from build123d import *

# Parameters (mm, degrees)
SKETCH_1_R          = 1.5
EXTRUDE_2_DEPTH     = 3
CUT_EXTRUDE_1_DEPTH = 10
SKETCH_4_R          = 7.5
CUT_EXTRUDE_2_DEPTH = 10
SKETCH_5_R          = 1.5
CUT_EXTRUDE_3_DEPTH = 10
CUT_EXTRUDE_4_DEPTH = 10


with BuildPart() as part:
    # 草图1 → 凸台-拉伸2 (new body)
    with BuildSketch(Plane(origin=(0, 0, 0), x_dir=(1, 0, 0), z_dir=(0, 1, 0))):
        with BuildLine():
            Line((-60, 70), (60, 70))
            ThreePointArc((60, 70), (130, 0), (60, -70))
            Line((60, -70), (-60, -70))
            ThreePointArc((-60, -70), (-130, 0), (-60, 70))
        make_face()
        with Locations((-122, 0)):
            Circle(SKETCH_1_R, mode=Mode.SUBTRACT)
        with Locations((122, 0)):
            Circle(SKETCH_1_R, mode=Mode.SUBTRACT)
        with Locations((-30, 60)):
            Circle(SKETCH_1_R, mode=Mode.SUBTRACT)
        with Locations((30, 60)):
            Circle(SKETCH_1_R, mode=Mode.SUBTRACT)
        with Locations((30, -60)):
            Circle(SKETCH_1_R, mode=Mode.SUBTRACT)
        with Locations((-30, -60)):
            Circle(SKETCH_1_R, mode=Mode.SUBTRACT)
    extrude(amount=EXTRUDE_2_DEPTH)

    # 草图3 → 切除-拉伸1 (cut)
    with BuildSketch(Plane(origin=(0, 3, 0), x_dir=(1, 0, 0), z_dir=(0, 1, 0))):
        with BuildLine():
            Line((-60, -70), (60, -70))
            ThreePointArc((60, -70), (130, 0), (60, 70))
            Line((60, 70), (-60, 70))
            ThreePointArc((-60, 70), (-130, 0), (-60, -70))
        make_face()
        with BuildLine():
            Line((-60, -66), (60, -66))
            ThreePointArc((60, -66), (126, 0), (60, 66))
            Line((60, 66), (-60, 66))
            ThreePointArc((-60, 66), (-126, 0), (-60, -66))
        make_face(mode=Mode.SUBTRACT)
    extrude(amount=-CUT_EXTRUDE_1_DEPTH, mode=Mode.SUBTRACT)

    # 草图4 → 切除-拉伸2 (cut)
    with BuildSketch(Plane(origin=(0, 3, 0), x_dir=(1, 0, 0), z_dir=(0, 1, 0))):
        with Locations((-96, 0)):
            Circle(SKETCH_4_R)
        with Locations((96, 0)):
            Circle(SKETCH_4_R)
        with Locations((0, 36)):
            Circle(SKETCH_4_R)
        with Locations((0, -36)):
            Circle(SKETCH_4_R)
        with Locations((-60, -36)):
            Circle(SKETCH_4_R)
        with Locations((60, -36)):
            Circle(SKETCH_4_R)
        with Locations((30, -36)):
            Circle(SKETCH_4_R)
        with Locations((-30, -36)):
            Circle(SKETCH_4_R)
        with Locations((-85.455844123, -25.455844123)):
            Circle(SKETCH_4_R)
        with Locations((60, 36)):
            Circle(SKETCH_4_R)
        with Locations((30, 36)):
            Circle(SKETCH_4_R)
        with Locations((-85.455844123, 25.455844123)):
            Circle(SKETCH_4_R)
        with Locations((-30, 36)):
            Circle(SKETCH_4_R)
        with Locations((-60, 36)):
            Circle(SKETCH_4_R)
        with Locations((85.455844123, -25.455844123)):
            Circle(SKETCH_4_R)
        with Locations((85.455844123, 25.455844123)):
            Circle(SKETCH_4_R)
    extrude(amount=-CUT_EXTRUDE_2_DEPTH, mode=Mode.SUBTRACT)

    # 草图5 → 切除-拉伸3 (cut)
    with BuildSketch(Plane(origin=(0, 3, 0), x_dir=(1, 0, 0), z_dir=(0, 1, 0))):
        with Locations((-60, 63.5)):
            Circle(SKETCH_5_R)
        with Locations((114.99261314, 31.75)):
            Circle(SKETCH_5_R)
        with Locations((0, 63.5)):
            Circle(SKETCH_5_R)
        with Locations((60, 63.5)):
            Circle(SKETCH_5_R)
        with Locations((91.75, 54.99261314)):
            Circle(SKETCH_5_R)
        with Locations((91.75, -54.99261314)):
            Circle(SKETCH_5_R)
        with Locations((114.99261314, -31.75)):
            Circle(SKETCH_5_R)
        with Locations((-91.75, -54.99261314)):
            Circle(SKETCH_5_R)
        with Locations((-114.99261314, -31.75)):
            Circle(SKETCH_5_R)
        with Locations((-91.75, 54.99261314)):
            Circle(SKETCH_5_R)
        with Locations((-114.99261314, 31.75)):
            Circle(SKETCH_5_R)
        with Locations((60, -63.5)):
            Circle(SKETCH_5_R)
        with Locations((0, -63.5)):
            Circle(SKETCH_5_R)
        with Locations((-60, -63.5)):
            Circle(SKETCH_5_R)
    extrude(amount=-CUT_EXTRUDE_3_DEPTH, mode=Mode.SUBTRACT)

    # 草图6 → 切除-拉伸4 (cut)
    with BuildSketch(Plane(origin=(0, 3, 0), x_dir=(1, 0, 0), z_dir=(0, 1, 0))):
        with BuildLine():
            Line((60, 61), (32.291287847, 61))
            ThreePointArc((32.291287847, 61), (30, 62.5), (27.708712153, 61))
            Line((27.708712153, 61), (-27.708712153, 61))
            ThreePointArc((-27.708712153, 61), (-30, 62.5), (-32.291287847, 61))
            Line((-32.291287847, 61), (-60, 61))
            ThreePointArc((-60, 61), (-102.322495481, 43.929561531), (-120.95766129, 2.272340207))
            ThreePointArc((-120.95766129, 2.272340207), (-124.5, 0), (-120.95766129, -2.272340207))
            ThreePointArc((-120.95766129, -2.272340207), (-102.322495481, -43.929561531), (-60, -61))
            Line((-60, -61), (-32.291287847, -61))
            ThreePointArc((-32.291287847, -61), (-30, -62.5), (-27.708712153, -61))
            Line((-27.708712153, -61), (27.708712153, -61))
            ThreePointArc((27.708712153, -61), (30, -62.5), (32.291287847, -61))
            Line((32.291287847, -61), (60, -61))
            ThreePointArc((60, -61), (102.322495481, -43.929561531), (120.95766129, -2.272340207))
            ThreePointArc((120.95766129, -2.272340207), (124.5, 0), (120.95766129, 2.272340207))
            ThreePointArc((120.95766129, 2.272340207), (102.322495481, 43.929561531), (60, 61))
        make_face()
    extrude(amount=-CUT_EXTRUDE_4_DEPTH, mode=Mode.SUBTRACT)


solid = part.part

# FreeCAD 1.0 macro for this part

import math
import FreeCAD as App
import Part
import Sketcher

doc = App.newDocument("Part")
body = doc.addObject("PartDesign::Body", "Body")

sketch1 = body.newObject("Sketcher::SketchObject", "Sketch")
sketch1.AttachmentSupport = (doc.getObject("XZ_Plane"), [""])
sketch1.MapMode = "FlatFace"
sketch1.addGeometry([
    Part.LineSegment(App.Vector(60, -70, 0), App.Vector(-60, -70, 0)),
    Part.ArcOfCircle(Part.Circle(App.Vector(-60, 0, 0), App.Vector(0, 0, 1), 70), math.radians(90), math.radians(270)),
    Part.LineSegment(App.Vector(-60, 70, 0), App.Vector(60, 70, 0)),
    Part.ArcOfCircle(Part.Circle(App.Vector(60, 0, 0), App.Vector(0, 0, 1), 70), math.radians(-90), math.radians(90)),
    Part.Circle(App.Vector(30, 60, 0), App.Vector(0, 0, 1), 1.5),
    Part.Circle(App.Vector(-30, 60, 0), App.Vector(0, 0, 1), 1.5),
    Part.Circle(App.Vector(122, 0, 0), App.Vector(0, 0, 1), 1.5),
    Part.Circle(App.Vector(30, -60, 0), App.Vector(0, 0, 1), 1.5),
    Part.Circle(App.Vector(-122, 0, 0), App.Vector(0, 0, 1), 1.5),
    Part.Circle(App.Vector(-30, -60, 0), App.Vector(0, 0, 1), 1.5),
], False)
sketch1.addConstraint([
    Sketcher.Constraint("Tangent", 0, 2, 1, 2),
    Sketcher.Constraint("Tangent", 1, 1, 2, 1),
    Sketcher.Constraint("Tangent", 2, 2, 3, 2),
    Sketcher.Constraint("Tangent", 3, 1, 0, 1),
    Sketcher.Constraint("Horizontal", 0),
    Sketcher.Constraint("Horizontal", 2),
    Sketcher.Constraint("Equal", 4, 5),
    Sketcher.Constraint("Equal", 5, 6),
    Sketcher.Constraint("Equal", 6, 7),
    Sketcher.Constraint("Equal", 7, 8),
    Sketcher.Constraint("Equal", 8, 9),
    Sketcher.Constraint("Symmetric", 1, 3, 3, 3, -1, 1),
    Sketcher.Constraint("Symmetric", 5, 3, 7, 3, -1, 1),
    Sketcher.Constraint("Symmetric", 6, 3, 8, 3, -1, 1),
    Sketcher.Constraint("Symmetric", 4, 3, 9, 3, -1, 1),
    Sketcher.Constraint("Symmetric", 4, 3, 5, 3, -2),
    Sketcher.Constraint("PointOnObject", 6, 3, -1),
    Sketcher.Constraint("Diameter", 4, 3.0),
    Sketcher.Constraint("Radius", 1, 70.0),
    Sketcher.Constraint("DistanceX", 0, 2, 0, 1, 120.0),
    Sketcher.Constraint("DistanceX", -1, 1, 4, 3, 30.0),
    Sketcher.Constraint("DistanceY", -1, 1, 4, 3, 60.0),
    Sketcher.Constraint("DistanceX", -1, 1, 6, 3, 122.0),
])
pad1 = body.newObject("PartDesign::Pad", "Pad")
pad1.Profile = sketch1
pad1.Length = 3
pad1.Reversed = True

sketch2 = body.newObject("Sketcher::SketchObject", "Sketch001")
sketch2.AttachmentSupport = (doc.getObject("XZ_Plane"), [""])
sketch2.MapMode = "FlatFace"
sketch2.AttachmentOffset = App.Placement(App.Vector(0, 0, -3), App.Rotation())
sketch2.addGeometry([
    Part.LineSegment(App.Vector(-60, 70, 0), App.Vector(60, 70, 0)),
    Part.ArcOfCircle(Part.Circle(App.Vector(60, 0, 0), App.Vector(0, 0, 1), 70), math.radians(-90), math.radians(90)),
    Part.LineSegment(App.Vector(60, -70, 0), App.Vector(-60, -70, 0)),
    Part.ArcOfCircle(Part.Circle(App.Vector(-60, 0, 0), App.Vector(0, 0, 1), 70), math.radians(90), math.radians(270)),
    Part.LineSegment(App.Vector(60, 66, 0), App.Vector(-60, 66, 0)),
    Part.ArcOfCircle(Part.Circle(App.Vector(-60, 0, 0), App.Vector(0, 0, 1), 66), math.radians(90), math.radians(270)),
    Part.LineSegment(App.Vector(-60, -66, 0), App.Vector(60, -66, 0)),
    Part.ArcOfCircle(Part.Circle(App.Vector(60, 0, 0), App.Vector(0, 0, 1), 66), math.radians(-90), math.radians(90)),
], False)
sketch2.addConstraint([
    Sketcher.Constraint("Tangent", 0, 2, 1, 2),
    Sketcher.Constraint("Tangent", 1, 1, 2, 1),
    Sketcher.Constraint("Tangent", 2, 2, 3, 2),
    Sketcher.Constraint("Tangent", 3, 1, 0, 1),
    Sketcher.Constraint("Tangent", 4, 2, 5, 1),
    Sketcher.Constraint("Tangent", 5, 2, 6, 1),
    Sketcher.Constraint("Tangent", 6, 2, 7, 1),
    Sketcher.Constraint("Tangent", 7, 2, 4, 1),
    Sketcher.Constraint("Horizontal", 0),
    Sketcher.Constraint("Horizontal", 2),
    Sketcher.Constraint("Horizontal", 4),
    Sketcher.Constraint("Horizontal", 6),
    Sketcher.Constraint("Coincident", 5, 3, 3, 3),
    Sketcher.Constraint("Symmetric", 1, 3, 3, 3, -1, 1),
    Sketcher.Constraint("Vertical", 7, 3, 0, 2),
    Sketcher.Constraint("Radius", 1, 70.0),
    Sketcher.Constraint("Radius", 5, 66.0),
    Sketcher.Constraint("DistanceX", 0, 1, 0, 2, 120.0),
])
pocket1 = body.newObject("PartDesign::Pocket", "Pocket")
pocket1.Profile = sketch2
pocket1.Length = 10
pocket1.Reversed = True

sketch3 = body.newObject("Sketcher::SketchObject", "Sketch002")
sketch3.AttachmentSupport = (doc.getObject("XZ_Plane"), [""])
sketch3.MapMode = "FlatFace"
sketch3.AttachmentOffset = App.Placement(App.Vector(0, 0, -3), App.Rotation())
sketch3.addGeometry([
    Part.Circle(App.Vector(-96, 0, 0), App.Vector(0, 0, 1), 8),
    Part.Circle(App.Vector(96, 0, 0), App.Vector(0, 0, 1), 8),
    Part.Circle(App.Vector(0, -36, 0), App.Vector(0, 0, 1), 8),
    Part.Circle(App.Vector(0, 36, 0), App.Vector(0, 0, 1), 8),
    Part.Circle(App.Vector(-60, 36, 0), App.Vector(0, 0, 1), 8),
    Part.Circle(App.Vector(60, 36, 0), App.Vector(0, 0, 1), 8),
    Part.Circle(App.Vector(30, 36, 0), App.Vector(0, 0, 1), 8),
    Part.Circle(App.Vector(-30, 36, 0), App.Vector(0, 0, 1), 8),
    Part.Circle(App.Vector(-85, 25, 0), App.Vector(0, 0, 1), 8),
    Part.Circle(App.Vector(60, -36, 0), App.Vector(0, 0, 1), 8),
    Part.Circle(App.Vector(30, -36, 0), App.Vector(0, 0, 1), 8),
    Part.Circle(App.Vector(-85, -25, 0), App.Vector(0, 0, 1), 8),
    Part.Circle(App.Vector(-30, -36, 0), App.Vector(0, 0, 1), 8),
    Part.Circle(App.Vector(-60, -36, 0), App.Vector(0, 0, 1), 8),
    Part.Circle(App.Vector(85, 25, 0), App.Vector(0, 0, 1), 8),
    Part.Circle(App.Vector(85, -25, 0), App.Vector(0, 0, 1), 8),
], False)
sketch3.addConstraint([
    Sketcher.Constraint("Equal", 0, 1),
    Sketcher.Constraint("Equal", 1, 2),
    Sketcher.Constraint("Equal", 2, 3),
    Sketcher.Constraint("Equal", 3, 4),
    Sketcher.Constraint("Equal", 4, 5),
    Sketcher.Constraint("Equal", 5, 6),
    Sketcher.Constraint("Equal", 6, 7),
    Sketcher.Constraint("Equal", 7, 8),
    Sketcher.Constraint("Equal", 8, 9),
    Sketcher.Constraint("Equal", 9, 10),
    Sketcher.Constraint("Equal", 10, 11),
    Sketcher.Constraint("Equal", 11, 12),
    Sketcher.Constraint("Equal", 12, 13),
    Sketcher.Constraint("Equal", 13, 14),
    Sketcher.Constraint("Equal", 14, 15),
    Sketcher.Constraint("Symmetric", 0, 3, 1, 3, -1, 1),
    Sketcher.Constraint("Symmetric", 2, 3, 3, 3, -1, 1),
    Sketcher.Constraint("Symmetric", 4, 3, 9, 3, -1, 1),
    Sketcher.Constraint("Symmetric", 7, 3, 10, 3, -1, 1),
    Sketcher.Constraint("Symmetric", 6, 3, 12, 3, -1, 1),
    Sketcher.Constraint("Symmetric", 5, 3, 13, 3, -1, 1),
    Sketcher.Constraint("Symmetric", 11, 3, 14, 3, -1, 1),
    Sketcher.Constraint("Symmetric", 8, 3, 15, 3, -1, 1),
    Sketcher.Constraint("Symmetric", 4, 3, 5, 3, -2),
    Sketcher.Constraint("Symmetric", 6, 3, 7, 3, -2),
    Sketcher.Constraint("Symmetric", 8, 3, 14, 3, -2),
    Sketcher.Constraint("PointOnObject", 0, 3, -1),
    Sketcher.Constraint("PointOnObject", 2, 3, -2),
    Sketcher.Constraint("Horizontal", 3, 3, 4, 3),
    Sketcher.Constraint("Horizontal", 5, 3, 6, 3),
    Sketcher.Constraint("Diameter", 0, 15.0),
    Sketcher.Constraint("DistanceX", 0, 3, -1, 1, 96.0),
    Sketcher.Constraint("DistanceY", 2, 3, -1, 1, 36.0),
    Sketcher.Constraint("DistanceX", 4, 3, -1, 1, 60.0),
    Sketcher.Constraint("DistanceX", -1, 1, 6, 3, 30.0),
    Sketcher.Constraint("DistanceY", 11, 3, 8, 3, 50.911688),
    Sketcher.Constraint("DistanceX", 8, 3, -1, 1, 85.455844),
])
pocket2 = body.newObject("PartDesign::Pocket", "Pocket001")
pocket2.Profile = sketch3
pocket2.Length = 10
pocket2.Reversed = True

sketch4 = body.newObject("Sketcher::SketchObject", "Sketch003")
sketch4.AttachmentSupport = (doc.getObject("XZ_Plane"), [""])
sketch4.MapMode = "FlatFace"
sketch4.AttachmentOffset = App.Placement(App.Vector(0, 0, -3), App.Rotation())
sketch4.addGeometry([
    Part.Circle(App.Vector(-60, -63.5, 0), App.Vector(0, 0, 1), 1.5),
    Part.Circle(App.Vector(115, -31.8, 0), App.Vector(0, 0, 1), 1.5),
    Part.Circle(App.Vector(0, -63.5, 0), App.Vector(0, 0, 1), 1.5),
    Part.Circle(App.Vector(60, -63.5, 0), App.Vector(0, 0, 1), 1.5),
    Part.Circle(App.Vector(91.8, -55, 0), App.Vector(0, 0, 1), 1.5),
    Part.Circle(App.Vector(91.8, 55, 0), App.Vector(0, 0, 1), 1.5),
    Part.Circle(App.Vector(115, 31.8, 0), App.Vector(0, 0, 1), 1.5),
    Part.Circle(App.Vector(-91.8, 55, 0), App.Vector(0, 0, 1), 1.5),
    Part.Circle(App.Vector(-115, 31.8, 0), App.Vector(0, 0, 1), 1.5),
    Part.Circle(App.Vector(-91.8, -55, 0), App.Vector(0, 0, 1), 1.5),
    Part.Circle(App.Vector(-115, -31.8, 0), App.Vector(0, 0, 1), 1.5),
    Part.Circle(App.Vector(60, 63.5, 0), App.Vector(0, 0, 1), 1.5),
    Part.Circle(App.Vector(0, 63.5, 0), App.Vector(0, 0, 1), 1.5),
    Part.Circle(App.Vector(-60, 63.5, 0), App.Vector(0, 0, 1), 1.5),
], False)
sketch4.addConstraint([
    Sketcher.Constraint("Equal", 0, 1),
    Sketcher.Constraint("Equal", 1, 2),
    Sketcher.Constraint("Equal", 2, 3),
    Sketcher.Constraint("Equal", 3, 4),
    Sketcher.Constraint("Equal", 4, 5),
    Sketcher.Constraint("Equal", 5, 6),
    Sketcher.Constraint("Equal", 6, 7),
    Sketcher.Constraint("Equal", 7, 8),
    Sketcher.Constraint("Equal", 8, 9),
    Sketcher.Constraint("Equal", 9, 10),
    Sketcher.Constraint("Equal", 10, 11),
    Sketcher.Constraint("Equal", 11, 12),
    Sketcher.Constraint("Equal", 12, 13),
    Sketcher.Constraint("Symmetric", 4, 3, 7, 3, -1, 1),
    Sketcher.Constraint("Symmetric", 1, 3, 8, 3, -1, 1),
    Sketcher.Constraint("Symmetric", 5, 3, 9, 3, -1, 1),
    Sketcher.Constraint("Symmetric", 6, 3, 10, 3, -1, 1),
    Sketcher.Constraint("Symmetric", 0, 3, 11, 3, -1, 1),
    Sketcher.Constraint("Symmetric", 2, 3, 12, 3, -1, 1),
    Sketcher.Constraint("Symmetric", 3, 3, 13, 3, -1, 1),
    Sketcher.Constraint("Symmetric", 0, 3, 3, 3, -2),
    Sketcher.Constraint("Symmetric", 5, 3, 7, 3, -2),
    Sketcher.Constraint("Symmetric", 6, 3, 8, 3, -2),
    Sketcher.Constraint("PointOnObject", 2, 3, -2),
    Sketcher.Constraint("Horizontal", 0, 3, 2, 3),
    Sketcher.Constraint("Diameter", 0, 3.0),
    Sketcher.Constraint("DistanceX", 0, 3, -1, 1, 60.0),
    Sketcher.Constraint("DistanceY", 3, 3, 11, 3, 127.0),
    Sketcher.Constraint("DistanceY", 1, 3, 6, 3, 63.5),
    Sketcher.Constraint("DistanceX", 7, 3, 5, 3, 183.5),
    Sketcher.Constraint("DistanceX", -1, 1, 1, 3, 114.992613),
    Sketcher.Constraint("DistanceY", 4, 3, -1, 1, 54.992613),
])
pocket3 = body.newObject("PartDesign::Pocket", "Pocket002")
pocket3.Profile = sketch4
pocket3.Length = 10
pocket3.Reversed = True

sketch5 = body.newObject("Sketcher::SketchObject", "Sketch004")
sketch5.AttachmentSupport = (doc.getObject("XZ_Plane"), [""])
sketch5.MapMode = "FlatFace"
sketch5.AttachmentOffset = App.Placement(App.Vector(0, 0, -3), App.Rotation())
sketch5.addGeometry([
    Part.LineSegment(App.Vector(60, -61, 0), App.Vector(32.3, -61, 0)),
    Part.ArcOfCircle(Part.Circle(App.Vector(30, -60, 0), App.Vector(0, 0, 1), 2.5), math.radians(-156), math.radians(-24)),
    Part.LineSegment(App.Vector(27.7, -61, 0), App.Vector(-27.7, -61, 0)),
    Part.ArcOfCircle(Part.Circle(App.Vector(-30, -60, 0), App.Vector(0, 0, 1), 2.5), math.radians(-156), math.radians(-24)),
    Part.LineSegment(App.Vector(-32.3, -61, 0), App.Vector(-60, -61, 0)),
    Part.ArcOfCircle(Part.Circle(App.Vector(-60, 0, 0), App.Vector(0, 0, 1), 61), math.radians(-178), math.radians(-90)),
    Part.ArcOfCircle(Part.Circle(App.Vector(-122, 0, 0), App.Vector(0, 0, 1), 2.5), math.radians(65), math.radians(295)),
    Part.ArcOfCircle(Part.Circle(App.Vector(-60, 0, 0), App.Vector(0, 0, 1), 61), math.radians(90), math.radians(178)),
    Part.LineSegment(App.Vector(-60, 61, 0), App.Vector(-32.3, 61, 0)),
    Part.ArcOfCircle(Part.Circle(App.Vector(-30, 60, 0), App.Vector(0, 0, 1), 2.5), math.radians(24), math.radians(156)),
    Part.LineSegment(App.Vector(-27.7, 61, 0), App.Vector(27.7, 61, 0)),
    Part.ArcOfCircle(Part.Circle(App.Vector(30, 60, 0), App.Vector(0, 0, 1), 2.5), math.radians(24), math.radians(156)),
    Part.LineSegment(App.Vector(32.3, 61, 0), App.Vector(60, 61, 0)),
    Part.ArcOfCircle(Part.Circle(App.Vector(60, 0, 0), App.Vector(0, 0, 1), 61), math.radians(2), math.radians(90)),
    Part.ArcOfCircle(Part.Circle(App.Vector(122, 0, 0), App.Vector(0, 0, 1), 2.5), math.radians(-115), math.radians(115)),
    Part.ArcOfCircle(Part.Circle(App.Vector(60, 0, 0), App.Vector(0, 0, 1), 61), math.radians(-90), math.radians(-2)),
], False)
sketch5.addConstraint([
    Sketcher.Constraint("Coincident", 0, 2, 1, 2),
    Sketcher.Constraint("Coincident", 1, 1, 2, 1),
    Sketcher.Constraint("Coincident", 2, 2, 3, 2),
    Sketcher.Constraint("Coincident", 3, 1, 4, 1),
    Sketcher.Constraint("Tangent", 4, 2, 5, 2),
    Sketcher.Constraint("Coincident", 5, 1, 6, 2),
    Sketcher.Constraint("Coincident", 6, 1, 7, 2),
    Sketcher.Constraint("Tangent", 7, 1, 8, 1),
    Sketcher.Constraint("Coincident", 8, 2, 9, 2),
    Sketcher.Constraint("Coincident", 9, 1, 10, 1),
    Sketcher.Constraint("Coincident", 10, 2, 11, 2),
    Sketcher.Constraint("Coincident", 11, 1, 12, 1),
    Sketcher.Constraint("Tangent", 12, 2, 13, 2),
    Sketcher.Constraint("Coincident", 13, 1, 14, 2),
    Sketcher.Constraint("Coincident", 14, 1, 15, 2),
    Sketcher.Constraint("Tangent", 15, 1, 0, 1),
    Sketcher.Constraint("Horizontal", 0),
    Sketcher.Constraint("Horizontal", 2),
    Sketcher.Constraint("Horizontal", 4),
    Sketcher.Constraint("Horizontal", 8),
    Sketcher.Constraint("Horizontal", 10),
    Sketcher.Constraint("Horizontal", 12),
    Sketcher.Constraint("Coincident", 7, 3, 5, 3),
    Sketcher.Constraint("Coincident", 15, 3, 13, 3),
    Sketcher.Constraint("Equal", 1, 3),
    Sketcher.Constraint("Equal", 3, 6),
    Sketcher.Constraint("Equal", 5, 7),
    Sketcher.Constraint("Equal", 6, 9),
    Sketcher.Constraint("Equal", 9, 11),
    Sketcher.Constraint("Equal", 7, 13),
    Sketcher.Constraint("Equal", 11, 14),
    Sketcher.Constraint("Equal", 13, 15),
    Sketcher.Constraint("Symmetric", 1, 3, 9, 3, -1, 1),
    Sketcher.Constraint("Symmetric", 3, 3, 11, 3, -1, 1),
    Sketcher.Constraint("Symmetric", 5, 3, 13, 3, -1, 1),
    Sketcher.Constraint("Symmetric", 6, 3, 14, 3, -1, 1),
    Sketcher.Constraint("Symmetric", 1, 3, 3, 3, -2),
    Sketcher.Constraint("Symmetric", 6, 1, 13, 1, -2),
    Sketcher.Constraint("Horizontal", 0, 2, 1, 1),
    Sketcher.Constraint("Horizontal", 8, 2, 9, 1),
    Sketcher.Constraint("Radius", 5, 61.0),
    Sketcher.Constraint("Radius", 1, 2.5),
    Sketcher.Constraint("DistanceX", -1, 1, 1, 3, 30.0),
    Sketcher.Constraint("DistanceY", 1, 3, -1, 1, 60.0),
    Sketcher.Constraint("DistanceX", 5, 3, -1, 1, 60.0),
    Sketcher.Constraint("DistanceX", 6, 3, -1, 1, 122.0),
])
pocket4 = body.newObject("PartDesign::Pocket", "Pocket003")
pocket4.Profile = sketch5
pocket4.Length = 10
pocket4.Reversed = True

doc.recompute()
